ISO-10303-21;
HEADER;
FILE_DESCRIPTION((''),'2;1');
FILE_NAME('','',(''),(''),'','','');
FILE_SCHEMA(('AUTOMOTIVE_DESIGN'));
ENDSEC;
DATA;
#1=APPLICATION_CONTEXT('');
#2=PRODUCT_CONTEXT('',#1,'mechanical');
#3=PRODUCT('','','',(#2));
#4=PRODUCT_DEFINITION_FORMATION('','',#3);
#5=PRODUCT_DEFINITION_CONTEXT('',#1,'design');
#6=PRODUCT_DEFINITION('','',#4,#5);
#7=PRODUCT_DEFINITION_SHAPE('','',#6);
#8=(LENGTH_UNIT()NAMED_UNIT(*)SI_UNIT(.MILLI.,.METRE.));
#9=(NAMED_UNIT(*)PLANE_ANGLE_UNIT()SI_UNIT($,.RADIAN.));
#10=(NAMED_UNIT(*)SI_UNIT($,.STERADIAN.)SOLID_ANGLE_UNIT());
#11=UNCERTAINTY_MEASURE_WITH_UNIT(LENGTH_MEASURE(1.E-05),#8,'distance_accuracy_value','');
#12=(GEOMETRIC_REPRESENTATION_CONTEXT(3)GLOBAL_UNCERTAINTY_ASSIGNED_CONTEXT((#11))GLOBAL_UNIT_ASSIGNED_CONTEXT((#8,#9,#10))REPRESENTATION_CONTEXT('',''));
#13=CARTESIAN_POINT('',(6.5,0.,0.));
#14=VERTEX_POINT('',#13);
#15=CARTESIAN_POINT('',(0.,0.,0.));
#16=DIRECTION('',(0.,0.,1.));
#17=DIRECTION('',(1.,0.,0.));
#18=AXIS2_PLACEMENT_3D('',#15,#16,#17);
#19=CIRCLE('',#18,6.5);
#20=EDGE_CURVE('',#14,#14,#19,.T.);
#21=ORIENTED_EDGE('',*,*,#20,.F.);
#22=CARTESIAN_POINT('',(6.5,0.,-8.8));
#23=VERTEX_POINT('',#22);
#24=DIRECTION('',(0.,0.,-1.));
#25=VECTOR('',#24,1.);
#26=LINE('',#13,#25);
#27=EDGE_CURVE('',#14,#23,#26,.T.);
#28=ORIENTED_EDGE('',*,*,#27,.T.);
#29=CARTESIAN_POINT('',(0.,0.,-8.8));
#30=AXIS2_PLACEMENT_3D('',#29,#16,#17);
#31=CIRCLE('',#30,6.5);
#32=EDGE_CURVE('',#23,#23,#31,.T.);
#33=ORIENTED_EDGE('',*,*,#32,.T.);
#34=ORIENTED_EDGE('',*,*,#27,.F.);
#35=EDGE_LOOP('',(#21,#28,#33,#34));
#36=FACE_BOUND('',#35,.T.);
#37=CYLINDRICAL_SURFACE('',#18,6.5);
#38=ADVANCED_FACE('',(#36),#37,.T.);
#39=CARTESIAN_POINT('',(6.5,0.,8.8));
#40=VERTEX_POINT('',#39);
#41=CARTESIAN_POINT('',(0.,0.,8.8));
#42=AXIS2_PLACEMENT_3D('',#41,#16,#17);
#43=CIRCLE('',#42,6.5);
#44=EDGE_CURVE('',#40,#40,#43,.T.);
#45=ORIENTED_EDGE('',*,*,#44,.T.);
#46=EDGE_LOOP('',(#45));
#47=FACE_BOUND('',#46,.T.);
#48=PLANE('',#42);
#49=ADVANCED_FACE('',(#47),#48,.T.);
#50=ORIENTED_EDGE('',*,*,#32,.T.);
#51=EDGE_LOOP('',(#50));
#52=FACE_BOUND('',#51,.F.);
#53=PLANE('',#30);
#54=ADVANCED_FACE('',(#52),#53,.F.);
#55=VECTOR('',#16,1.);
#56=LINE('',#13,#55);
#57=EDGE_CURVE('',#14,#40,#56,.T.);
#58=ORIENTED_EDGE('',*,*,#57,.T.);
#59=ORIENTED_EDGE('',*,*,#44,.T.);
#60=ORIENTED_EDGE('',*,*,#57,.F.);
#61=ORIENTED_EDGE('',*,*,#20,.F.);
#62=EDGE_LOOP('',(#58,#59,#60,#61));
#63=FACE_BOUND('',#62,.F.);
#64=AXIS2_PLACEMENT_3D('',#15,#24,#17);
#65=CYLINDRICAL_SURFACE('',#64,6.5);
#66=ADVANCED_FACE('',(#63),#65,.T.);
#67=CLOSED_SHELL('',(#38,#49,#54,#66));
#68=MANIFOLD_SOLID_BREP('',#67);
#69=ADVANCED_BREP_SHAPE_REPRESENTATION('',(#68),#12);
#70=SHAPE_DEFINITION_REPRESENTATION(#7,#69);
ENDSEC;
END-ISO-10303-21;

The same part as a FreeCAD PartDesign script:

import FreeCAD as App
import Part
import Sketcher

V = App.Vector
Q = App.Units.Quantity

doc = App.newDocument("Part")
body = doc.addObject("PartDesign::Body", "Body")

# Sketch on XY plane
sketch1 = body.newObject("Sketcher::SketchObject", "Sketch")
sketch1.AttachmentSupport = (doc.getObject("XY_Plane"), [""])
sketch1.MapMode = "FlatFace"
sketch1.addGeometry(Part.Circle(V(0, 0, 0), V(0, 0, 1), 6.5), False)
sketch1.addConstraint([
    Sketcher.Constraint("Coincident", 0, 3, -1, 1),
    Sketcher.Constraint("Diameter", 0, Q("13 mm")),
])
pad1 = body.newObject("PartDesign::Pad", "Pad")
pad1.Profile = sketch1
pad1.Length = 17.6
pad1.Midplane = True

doc.recompute()
